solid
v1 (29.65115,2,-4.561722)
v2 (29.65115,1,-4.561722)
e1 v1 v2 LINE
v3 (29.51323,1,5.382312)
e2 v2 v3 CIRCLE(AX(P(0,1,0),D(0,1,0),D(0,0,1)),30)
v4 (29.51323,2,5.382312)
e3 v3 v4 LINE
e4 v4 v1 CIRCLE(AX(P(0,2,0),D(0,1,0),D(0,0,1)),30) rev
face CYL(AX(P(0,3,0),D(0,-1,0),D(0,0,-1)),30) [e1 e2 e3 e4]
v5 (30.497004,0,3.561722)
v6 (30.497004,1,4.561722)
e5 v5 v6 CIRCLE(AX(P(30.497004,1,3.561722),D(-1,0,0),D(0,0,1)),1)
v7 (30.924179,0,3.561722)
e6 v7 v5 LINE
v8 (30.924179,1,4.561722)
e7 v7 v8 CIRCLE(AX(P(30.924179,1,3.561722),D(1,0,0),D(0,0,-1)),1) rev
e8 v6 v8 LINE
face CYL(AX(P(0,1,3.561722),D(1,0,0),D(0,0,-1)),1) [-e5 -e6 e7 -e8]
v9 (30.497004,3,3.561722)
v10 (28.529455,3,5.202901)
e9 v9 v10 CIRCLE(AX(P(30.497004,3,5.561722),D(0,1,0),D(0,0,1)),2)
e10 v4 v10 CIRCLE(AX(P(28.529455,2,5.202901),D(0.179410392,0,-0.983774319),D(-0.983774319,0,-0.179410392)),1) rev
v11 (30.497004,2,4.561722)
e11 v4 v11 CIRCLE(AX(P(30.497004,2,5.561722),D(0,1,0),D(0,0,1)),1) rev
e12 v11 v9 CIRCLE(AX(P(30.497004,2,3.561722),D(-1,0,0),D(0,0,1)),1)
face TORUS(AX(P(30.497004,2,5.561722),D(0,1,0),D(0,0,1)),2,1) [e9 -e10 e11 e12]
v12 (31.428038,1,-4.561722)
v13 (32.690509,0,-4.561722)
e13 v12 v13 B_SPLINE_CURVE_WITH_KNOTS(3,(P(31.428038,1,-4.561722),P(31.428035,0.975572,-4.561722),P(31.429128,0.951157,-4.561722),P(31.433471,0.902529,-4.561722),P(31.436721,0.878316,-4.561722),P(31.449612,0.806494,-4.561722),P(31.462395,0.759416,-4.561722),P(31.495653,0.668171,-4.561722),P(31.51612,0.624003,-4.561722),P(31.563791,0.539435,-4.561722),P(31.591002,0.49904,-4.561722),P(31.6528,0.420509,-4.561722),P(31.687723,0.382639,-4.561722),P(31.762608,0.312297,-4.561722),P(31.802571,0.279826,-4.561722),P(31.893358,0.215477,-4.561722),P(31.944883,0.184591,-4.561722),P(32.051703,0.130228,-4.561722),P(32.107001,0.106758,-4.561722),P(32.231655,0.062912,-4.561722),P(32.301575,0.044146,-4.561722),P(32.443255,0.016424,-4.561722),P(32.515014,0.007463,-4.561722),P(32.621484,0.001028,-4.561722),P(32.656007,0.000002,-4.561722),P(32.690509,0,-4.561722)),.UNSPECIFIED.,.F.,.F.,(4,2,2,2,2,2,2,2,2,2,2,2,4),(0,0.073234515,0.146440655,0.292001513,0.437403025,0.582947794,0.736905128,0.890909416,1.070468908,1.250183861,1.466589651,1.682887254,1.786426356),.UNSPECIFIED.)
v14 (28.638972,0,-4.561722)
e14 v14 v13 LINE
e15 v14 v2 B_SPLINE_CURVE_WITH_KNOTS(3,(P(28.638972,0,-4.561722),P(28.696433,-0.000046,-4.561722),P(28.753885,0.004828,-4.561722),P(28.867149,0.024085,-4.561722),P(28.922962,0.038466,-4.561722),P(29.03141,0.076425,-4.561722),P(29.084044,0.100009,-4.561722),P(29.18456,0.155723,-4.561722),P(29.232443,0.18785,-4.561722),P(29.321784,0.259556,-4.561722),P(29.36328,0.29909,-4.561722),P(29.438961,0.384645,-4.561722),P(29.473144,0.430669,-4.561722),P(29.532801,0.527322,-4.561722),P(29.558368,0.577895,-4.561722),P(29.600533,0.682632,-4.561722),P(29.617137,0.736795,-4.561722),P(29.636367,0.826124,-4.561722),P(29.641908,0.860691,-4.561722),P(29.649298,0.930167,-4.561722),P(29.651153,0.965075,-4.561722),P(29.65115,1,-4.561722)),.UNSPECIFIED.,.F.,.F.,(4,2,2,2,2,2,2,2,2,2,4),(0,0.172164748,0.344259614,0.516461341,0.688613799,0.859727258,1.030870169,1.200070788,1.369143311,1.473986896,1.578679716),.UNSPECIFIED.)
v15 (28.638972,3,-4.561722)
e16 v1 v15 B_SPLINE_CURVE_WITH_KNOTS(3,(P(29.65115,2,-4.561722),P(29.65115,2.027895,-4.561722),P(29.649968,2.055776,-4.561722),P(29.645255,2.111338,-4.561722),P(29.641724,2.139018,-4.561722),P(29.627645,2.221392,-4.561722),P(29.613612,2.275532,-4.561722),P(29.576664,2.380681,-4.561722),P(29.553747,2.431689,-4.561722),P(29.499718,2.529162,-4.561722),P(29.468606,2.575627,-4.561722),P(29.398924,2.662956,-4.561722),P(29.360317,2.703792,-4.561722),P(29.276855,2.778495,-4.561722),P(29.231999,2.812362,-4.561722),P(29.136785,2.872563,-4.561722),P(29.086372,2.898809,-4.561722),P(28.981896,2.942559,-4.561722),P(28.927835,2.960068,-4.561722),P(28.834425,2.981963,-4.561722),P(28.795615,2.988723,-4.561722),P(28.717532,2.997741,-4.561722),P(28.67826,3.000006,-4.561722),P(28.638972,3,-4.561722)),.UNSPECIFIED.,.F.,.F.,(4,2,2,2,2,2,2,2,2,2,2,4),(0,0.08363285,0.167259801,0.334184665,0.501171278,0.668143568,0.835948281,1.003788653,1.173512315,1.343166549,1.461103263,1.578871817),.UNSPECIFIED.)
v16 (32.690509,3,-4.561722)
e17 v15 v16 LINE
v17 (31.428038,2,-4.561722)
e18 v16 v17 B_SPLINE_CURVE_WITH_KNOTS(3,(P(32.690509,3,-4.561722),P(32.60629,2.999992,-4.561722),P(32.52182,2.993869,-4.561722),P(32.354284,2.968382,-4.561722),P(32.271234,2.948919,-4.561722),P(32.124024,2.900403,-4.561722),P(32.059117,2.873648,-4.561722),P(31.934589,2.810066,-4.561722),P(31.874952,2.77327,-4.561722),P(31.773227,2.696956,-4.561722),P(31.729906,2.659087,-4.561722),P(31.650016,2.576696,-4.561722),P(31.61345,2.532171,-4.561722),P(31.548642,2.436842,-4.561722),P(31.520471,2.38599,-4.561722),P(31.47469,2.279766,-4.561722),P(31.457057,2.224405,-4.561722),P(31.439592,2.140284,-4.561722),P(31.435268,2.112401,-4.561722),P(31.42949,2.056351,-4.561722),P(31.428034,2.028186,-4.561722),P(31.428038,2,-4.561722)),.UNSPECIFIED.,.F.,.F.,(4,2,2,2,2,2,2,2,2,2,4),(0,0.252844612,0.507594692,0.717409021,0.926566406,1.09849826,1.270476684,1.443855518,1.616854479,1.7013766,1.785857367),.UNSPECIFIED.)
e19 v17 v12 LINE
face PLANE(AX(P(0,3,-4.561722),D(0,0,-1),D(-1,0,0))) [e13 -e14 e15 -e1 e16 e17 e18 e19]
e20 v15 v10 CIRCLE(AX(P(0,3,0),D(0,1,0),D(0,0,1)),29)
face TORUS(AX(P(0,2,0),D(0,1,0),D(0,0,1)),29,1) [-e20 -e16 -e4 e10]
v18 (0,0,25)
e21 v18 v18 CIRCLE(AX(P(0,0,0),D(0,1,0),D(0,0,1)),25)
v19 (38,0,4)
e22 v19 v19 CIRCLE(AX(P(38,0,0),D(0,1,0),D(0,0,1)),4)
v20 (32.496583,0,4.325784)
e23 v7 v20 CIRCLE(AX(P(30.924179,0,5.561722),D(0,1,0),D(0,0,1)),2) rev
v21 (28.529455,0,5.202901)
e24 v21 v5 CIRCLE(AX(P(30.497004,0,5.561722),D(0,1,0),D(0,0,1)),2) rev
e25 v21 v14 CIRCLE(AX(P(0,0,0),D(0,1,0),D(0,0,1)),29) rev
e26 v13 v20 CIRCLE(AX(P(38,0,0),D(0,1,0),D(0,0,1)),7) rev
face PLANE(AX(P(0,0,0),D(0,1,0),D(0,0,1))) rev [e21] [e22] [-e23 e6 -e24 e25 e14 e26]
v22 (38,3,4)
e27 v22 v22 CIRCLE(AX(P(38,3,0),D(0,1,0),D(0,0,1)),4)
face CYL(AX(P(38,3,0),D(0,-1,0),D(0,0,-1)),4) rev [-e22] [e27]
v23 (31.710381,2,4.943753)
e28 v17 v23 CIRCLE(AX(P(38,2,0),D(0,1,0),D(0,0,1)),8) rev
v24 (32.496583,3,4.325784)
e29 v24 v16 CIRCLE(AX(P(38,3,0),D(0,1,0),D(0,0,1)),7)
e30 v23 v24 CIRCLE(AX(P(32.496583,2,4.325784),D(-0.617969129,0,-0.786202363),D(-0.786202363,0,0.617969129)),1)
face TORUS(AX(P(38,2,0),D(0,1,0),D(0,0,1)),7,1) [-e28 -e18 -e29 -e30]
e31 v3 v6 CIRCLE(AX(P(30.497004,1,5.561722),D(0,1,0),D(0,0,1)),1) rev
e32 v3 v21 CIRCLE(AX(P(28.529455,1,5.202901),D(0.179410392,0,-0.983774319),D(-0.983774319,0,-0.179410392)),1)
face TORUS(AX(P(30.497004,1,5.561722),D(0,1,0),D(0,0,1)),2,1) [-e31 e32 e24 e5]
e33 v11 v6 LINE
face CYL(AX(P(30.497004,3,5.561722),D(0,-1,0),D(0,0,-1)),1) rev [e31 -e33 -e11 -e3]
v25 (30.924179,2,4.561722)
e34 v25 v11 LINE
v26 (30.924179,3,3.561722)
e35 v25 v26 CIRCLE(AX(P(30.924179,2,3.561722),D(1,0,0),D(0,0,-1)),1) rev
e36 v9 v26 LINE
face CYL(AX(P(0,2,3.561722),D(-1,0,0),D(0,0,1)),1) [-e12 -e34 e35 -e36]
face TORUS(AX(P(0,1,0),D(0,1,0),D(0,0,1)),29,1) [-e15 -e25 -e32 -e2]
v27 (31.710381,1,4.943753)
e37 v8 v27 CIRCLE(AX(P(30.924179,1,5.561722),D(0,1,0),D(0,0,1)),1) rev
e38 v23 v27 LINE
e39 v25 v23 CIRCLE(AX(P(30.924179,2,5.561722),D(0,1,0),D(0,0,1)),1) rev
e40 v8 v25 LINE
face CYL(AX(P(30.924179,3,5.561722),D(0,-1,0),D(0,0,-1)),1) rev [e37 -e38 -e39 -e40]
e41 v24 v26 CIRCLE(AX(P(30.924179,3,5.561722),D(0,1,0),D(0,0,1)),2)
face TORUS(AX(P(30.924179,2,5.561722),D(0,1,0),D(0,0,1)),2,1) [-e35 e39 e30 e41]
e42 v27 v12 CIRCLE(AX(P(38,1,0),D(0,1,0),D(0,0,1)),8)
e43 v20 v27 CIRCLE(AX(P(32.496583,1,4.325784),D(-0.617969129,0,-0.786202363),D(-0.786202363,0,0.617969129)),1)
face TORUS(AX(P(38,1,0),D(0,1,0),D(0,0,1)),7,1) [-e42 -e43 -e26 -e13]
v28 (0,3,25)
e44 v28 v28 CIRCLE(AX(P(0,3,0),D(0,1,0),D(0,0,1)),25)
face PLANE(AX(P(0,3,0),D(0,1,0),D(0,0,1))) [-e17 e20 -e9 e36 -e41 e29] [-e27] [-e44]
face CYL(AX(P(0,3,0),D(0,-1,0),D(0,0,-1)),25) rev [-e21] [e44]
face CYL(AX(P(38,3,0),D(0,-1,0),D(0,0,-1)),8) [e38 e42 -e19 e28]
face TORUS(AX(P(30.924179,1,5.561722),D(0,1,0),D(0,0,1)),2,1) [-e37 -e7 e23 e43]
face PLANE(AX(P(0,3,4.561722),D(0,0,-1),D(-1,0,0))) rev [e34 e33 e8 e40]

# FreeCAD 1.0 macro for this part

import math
import FreeCAD as App
import Part
import Sketcher
Q = App.Units.Quantity


def edges_at(feature, points):
    """Names of the edges that pass closest to the given points."""
    edges = feature.Shape.Edges
    near = lambda p: min(range(len(edges)), key=lambda i: edges[i].distToShape(Part.Vertex(*p))[0])
    return sorted({f"Edge{near(p) + 1}" for p in points})

doc = App.newDocument("Part")
body = doc.addObject("PartDesign::Body", "Body")

# Sketch on XZ plane
sketch1 = doc.addObject("Sketcher::SketchObject", "Sketch")
body.addObject(sketch1)
sketch1.AttachmentSupport = (doc.XZ_Plane, [""])
sketch1.MapMode = "FlatFace"
sketch1.addGeometry([
    Part.LineSegment(App.Vector(31.4, -4.6, 0), App.Vector(29.7, -4.6, 0)),  # 0
    Part.ArcOfCircle(Part.Circle(App.Vector(0, 0, 0), App.Vector(0, 0, 1), 30), math.radians(9), math.radians(351)),  # 1
    Part.LineSegment(App.Vector(29.7, 4.6, 0), App.Vector(31.4, 4.6, 0)),  # 2
    Part.ArcOfCircle(Part.Circle(App.Vector(38, 0, 0), App.Vector(0, 0, 1), 8), math.radians(-145), math.radians(145)),  # 3
    Part.Circle(App.Vector(0, 0, 0), App.Vector(0, 0, 1), 25),  # 4
    Part.Circle(App.Vector(38, 0, 0), App.Vector(0, 0, 1), 4),  # 5
], False)
sketch1.addConstraint([
    Sketcher.Constraint("Coincident", 0, 2, 1, 2),
    Sketcher.Constraint("Coincident", 1, 1, 2, 1),
    Sketcher.Constraint("Coincident", 2, 2, 3, 2),
    Sketcher.Constraint("Coincident", 3, 1, 0, 1),
    Sketcher.Constraint("Horizontal", 0),
    Sketcher.Constraint("Horizontal", 2),
    Sketcher.Constraint("Coincident", 1, 3, -1, 1),
    Sketcher.Constraint("Coincident", 4, 3, -1, 1),
    Sketcher.Constraint("Coincident", 5, 3, 3, 3),
    Sketcher.Constraint("Symmetric", 2, 2, 3, 1, -1),
    Sketcher.Constraint("Diameter", 4, Q("50 mm")),
    Sketcher.Constraint("Diameter", 5, Q("8 mm")),
    Sketcher.Constraint("Radius", 1, Q("30 mm")),
    Sketcher.Constraint("Radius", 3, Q("8 mm")),
    Sketcher.Constraint("DistanceX", -1, 1, 3, 3, Q("38 mm")),
    Sketcher.Constraint("DistanceX", 0, 2, 0, 1, Q("1.776888 mm")),
])
pad1 = doc.addObject("PartDesign::Pad", "Pad")
body.addObject(pad1)
pad1.Profile = sketch1
pad1.Length = 3
pad1.Reversed = True
doc.recompute()

fillet = doc.addObject("PartDesign::Fillet", "Fillet")
body.addObject(fillet)
fillet.Base = (pad1, edges_at(pad1, [
    (30.54, 0, 4.562),
    (-30, 0, 0),
    (30.54, 3, 4.562),
    (31.428, 1.5, 4.562),
    (29.651, 1.5, 4.562),
    (46, 3, 0),
    (-30, 3, 0),
    (46, 0, 0),
]))
fillet.Radius = 1

doc.recompute()
